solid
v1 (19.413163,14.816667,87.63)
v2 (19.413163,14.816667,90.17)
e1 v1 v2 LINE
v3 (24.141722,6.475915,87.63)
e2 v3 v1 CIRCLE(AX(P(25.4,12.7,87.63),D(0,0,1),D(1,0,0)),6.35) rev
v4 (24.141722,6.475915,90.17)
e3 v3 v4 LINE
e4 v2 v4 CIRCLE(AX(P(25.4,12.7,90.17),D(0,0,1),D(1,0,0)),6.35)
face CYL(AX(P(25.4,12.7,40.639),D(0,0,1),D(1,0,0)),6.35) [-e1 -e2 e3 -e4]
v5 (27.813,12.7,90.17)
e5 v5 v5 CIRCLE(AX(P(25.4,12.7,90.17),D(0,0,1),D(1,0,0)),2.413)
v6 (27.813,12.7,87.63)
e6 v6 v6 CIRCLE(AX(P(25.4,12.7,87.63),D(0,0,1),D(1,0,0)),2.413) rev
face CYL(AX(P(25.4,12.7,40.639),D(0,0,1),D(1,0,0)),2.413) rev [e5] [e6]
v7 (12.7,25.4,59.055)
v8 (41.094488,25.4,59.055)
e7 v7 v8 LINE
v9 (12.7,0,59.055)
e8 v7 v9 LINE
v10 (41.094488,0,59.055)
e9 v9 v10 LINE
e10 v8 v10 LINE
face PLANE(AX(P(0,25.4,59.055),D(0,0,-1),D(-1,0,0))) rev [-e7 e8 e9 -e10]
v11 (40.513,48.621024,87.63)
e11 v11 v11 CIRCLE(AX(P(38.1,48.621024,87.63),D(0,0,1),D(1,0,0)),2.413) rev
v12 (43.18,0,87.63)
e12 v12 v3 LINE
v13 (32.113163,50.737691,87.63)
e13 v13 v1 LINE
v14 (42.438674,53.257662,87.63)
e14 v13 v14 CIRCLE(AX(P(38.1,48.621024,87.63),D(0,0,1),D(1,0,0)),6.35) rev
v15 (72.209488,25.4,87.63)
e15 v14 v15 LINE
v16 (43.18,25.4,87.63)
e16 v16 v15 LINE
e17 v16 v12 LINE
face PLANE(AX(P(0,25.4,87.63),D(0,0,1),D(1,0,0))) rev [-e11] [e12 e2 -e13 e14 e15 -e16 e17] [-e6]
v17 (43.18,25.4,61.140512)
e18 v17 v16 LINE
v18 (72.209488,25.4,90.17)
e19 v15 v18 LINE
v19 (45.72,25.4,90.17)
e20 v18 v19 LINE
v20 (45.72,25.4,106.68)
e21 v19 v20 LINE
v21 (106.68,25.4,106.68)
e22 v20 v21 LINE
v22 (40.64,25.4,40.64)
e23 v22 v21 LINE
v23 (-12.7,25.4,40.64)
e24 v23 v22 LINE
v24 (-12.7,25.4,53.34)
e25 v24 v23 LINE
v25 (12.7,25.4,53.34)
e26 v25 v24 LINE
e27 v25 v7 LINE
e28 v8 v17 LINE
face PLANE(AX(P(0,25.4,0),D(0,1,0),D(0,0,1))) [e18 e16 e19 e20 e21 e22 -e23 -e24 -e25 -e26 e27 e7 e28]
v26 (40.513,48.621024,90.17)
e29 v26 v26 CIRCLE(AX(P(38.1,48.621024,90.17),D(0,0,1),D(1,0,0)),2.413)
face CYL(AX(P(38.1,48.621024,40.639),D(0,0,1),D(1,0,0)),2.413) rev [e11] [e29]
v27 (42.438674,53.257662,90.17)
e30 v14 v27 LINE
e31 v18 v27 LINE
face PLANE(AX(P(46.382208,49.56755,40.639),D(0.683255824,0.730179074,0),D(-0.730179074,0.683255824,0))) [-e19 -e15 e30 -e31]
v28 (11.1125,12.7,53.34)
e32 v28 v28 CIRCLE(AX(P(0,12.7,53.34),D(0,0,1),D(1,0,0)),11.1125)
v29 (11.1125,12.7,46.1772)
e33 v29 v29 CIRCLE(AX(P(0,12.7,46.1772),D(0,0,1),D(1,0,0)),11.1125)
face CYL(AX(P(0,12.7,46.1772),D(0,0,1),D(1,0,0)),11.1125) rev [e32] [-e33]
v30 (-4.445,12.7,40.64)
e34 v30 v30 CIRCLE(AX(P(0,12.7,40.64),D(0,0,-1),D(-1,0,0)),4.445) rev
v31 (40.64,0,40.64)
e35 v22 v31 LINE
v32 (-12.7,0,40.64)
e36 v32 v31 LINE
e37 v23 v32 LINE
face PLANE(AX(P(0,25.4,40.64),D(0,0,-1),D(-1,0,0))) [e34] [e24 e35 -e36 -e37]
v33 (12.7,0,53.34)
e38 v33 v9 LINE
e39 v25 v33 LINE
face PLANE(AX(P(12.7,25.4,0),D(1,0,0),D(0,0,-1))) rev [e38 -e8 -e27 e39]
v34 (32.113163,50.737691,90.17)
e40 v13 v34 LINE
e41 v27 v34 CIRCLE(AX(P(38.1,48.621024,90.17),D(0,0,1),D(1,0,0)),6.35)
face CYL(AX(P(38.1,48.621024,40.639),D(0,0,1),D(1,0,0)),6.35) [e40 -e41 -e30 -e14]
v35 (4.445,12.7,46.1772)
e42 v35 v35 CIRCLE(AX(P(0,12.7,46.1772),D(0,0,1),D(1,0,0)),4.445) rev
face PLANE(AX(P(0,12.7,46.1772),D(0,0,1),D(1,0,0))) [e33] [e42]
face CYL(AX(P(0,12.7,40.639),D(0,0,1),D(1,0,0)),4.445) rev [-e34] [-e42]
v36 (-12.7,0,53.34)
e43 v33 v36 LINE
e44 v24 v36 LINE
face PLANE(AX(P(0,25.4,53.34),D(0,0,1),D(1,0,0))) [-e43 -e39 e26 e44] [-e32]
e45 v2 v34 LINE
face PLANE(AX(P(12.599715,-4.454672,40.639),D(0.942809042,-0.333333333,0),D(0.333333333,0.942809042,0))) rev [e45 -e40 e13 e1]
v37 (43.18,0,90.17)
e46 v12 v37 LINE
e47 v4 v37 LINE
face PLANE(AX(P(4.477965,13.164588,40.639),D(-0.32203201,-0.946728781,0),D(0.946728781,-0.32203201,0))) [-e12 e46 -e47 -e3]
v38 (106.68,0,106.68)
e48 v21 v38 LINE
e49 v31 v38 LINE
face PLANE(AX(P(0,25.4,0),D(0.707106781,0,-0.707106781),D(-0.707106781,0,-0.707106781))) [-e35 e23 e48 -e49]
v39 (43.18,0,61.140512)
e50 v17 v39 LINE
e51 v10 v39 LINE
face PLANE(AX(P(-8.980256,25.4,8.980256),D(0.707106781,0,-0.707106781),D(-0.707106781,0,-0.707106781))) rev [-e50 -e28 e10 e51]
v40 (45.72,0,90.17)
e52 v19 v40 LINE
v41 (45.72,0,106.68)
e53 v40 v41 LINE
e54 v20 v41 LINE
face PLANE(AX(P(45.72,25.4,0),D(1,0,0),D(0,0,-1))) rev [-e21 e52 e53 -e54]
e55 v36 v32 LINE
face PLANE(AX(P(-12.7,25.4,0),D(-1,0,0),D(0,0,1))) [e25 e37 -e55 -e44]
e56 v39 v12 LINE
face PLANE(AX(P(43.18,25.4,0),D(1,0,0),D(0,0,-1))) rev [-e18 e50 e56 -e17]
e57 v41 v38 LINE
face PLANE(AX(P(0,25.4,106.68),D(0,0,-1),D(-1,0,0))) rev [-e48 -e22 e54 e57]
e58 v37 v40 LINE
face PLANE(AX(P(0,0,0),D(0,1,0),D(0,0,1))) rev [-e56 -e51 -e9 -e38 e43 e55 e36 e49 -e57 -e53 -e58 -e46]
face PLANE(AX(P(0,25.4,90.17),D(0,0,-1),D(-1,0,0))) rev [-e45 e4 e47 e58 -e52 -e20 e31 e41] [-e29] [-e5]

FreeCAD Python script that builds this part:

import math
import FreeCAD as App
import Part
import Sketcher
from FreeCAD import Vector
Q = App.Units.Quantity

doc = App.newDocument("Part")
body = doc.addObject("PartDesign::Body", "Body")

sketch1 = body.newObject("Sketcher::SketchObject", "Sketch")
sketch1.AttachmentSupport = (doc.getObject("XZ_Plane"), [""])
sketch1.MapMode = "FlatFace"
sketch1.addGeometry(Part.LineSegment(Vector(-12.7, 40.6, 0), Vector(-12.7, 53.3, 0)), False)
sketch1.addGeometry(Part.LineSegment(Vector(-12.7, 53.3, 0), Vector(12.7, 53.3, 0)), False)
sketch1.addGeometry(Part.LineSegment(Vector(12.7, 53.3, 0), Vector(12.7, 59.1, 0)), False)
sketch1.addGeometry(Part.LineSegment(Vector(12.7, 59.1, 0), Vector(41.1, 59.1, 0)), False)
sketch1.addGeometry(Part.LineSegment(Vector(41.1, 59.1, 0), Vector(43.2, 61.1, 0)), False)
sketch1.addGeometry(Part.LineSegment(Vector(43.2, 61.1, 0), Vector(43.2, 87.6, 0)), False)
sketch1.addGeometry(Part.LineSegment(Vector(43.2, 87.6, 0), Vector(16.5, 87.6, 0)), False)
sketch1.addGeometry(Part.LineSegment(Vector(16.5, 87.6, 0), Vector(16.5, 90.2, 0)), False)
sketch1.addGeometry(Part.LineSegment(Vector(16.5, 90.2, 0), Vector(45.7, 90.2, 0)), False)
sketch1.addGeometry(Part.LineSegment(Vector(45.7, 90.2, 0), Vector(45.7, 106.7, 0)), False)
sketch1.addGeometry(Part.LineSegment(Vector(45.7, 106.7, 0), Vector(106.7, 106.7, 0)), False)
sketch1.addGeometry(Part.LineSegment(Vector(106.7, 106.7, 0), Vector(40.6, 40.6, 0)), False)
sketch1.addGeometry(Part.LineSegment(Vector(40.6, 40.6, 0), Vector(-12.7, 40.6, 0)), False)
sketch1.addConstraint(Sketcher.Constraint("Coincident", 0, 2, 1, 1))
sketch1.addConstraint(Sketcher.Constraint("Coincident", 1, 2, 2, 1))
sketch1.addConstraint(Sketcher.Constraint("Coincident", 2, 2, 3, 1))
sketch1.addConstraint(Sketcher.Constraint("Coincident", 3, 2, 4, 1))
sketch1.addConstraint(Sketcher.Constraint("Coincident", 4, 2, 5, 1))
sketch1.addConstraint(Sketcher.Constraint("Coincident", 5, 2, 6, 1))
sketch1.addConstraint(Sketcher.Constraint("Coincident", 6, 2, 7, 1))
sketch1.addConstraint(Sketcher.Constraint("Coincident", 7, 2, 8, 1))
sketch1.addConstraint(Sketcher.Constraint("Coincident", 8, 2, 9, 1))
sketch1.addConstraint(Sketcher.Constraint("Coincident", 9, 2, 10, 1))
sketch1.addConstraint(Sketcher.Constraint("Coincident", 10, 2, 11, 1))
sketch1.addConstraint(Sketcher.Constraint("Coincident", 11, 2, 12, 1))
sketch1.addConstraint(Sketcher.Constraint("Coincident", 12, 2, 0, 1))
sketch1.addConstraint(Sketcher.Constraint("Vertical", 0))
sketch1.addConstraint(Sketcher.Constraint("Horizontal", 1))
sketch1.addConstraint(Sketcher.Constraint("Vertical", 2))
sketch1.addConstraint(Sketcher.Constraint("Horizontal", 3))
sketch1.addConstraint(Sketcher.Constraint("Vertical", 5))
sketch1.addConstraint(Sketcher.Constraint("Horizontal", 6))
sketch1.addConstraint(Sketcher.Constraint("Vertical", 7))
sketch1.addConstraint(Sketcher.Constraint("Horizontal", 8))
sketch1.addConstraint(Sketcher.Constraint("Vertical", 9))
sketch1.addConstraint(Sketcher.Constraint("Horizontal", 10))
sketch1.addConstraint(Sketcher.Constraint("Horizontal", 12))
sketch1.addConstraint(Sketcher.Constraint("Parallel", 4, 11))
sketch1.addConstraint(Sketcher.Constraint("DistanceX", 1, 1, 1, 2, Q("1 in")))
sketch1.addConstraint(Sketcher.Constraint("DistanceX", 10, 1, 10, 2, Q("2.4 in")))
sketch1.addConstraint(Sketcher.Constraint("DistanceX", 12, 2, 12, 1, Q("2.1 in")))
sketch1.addConstraint(Sketcher.Constraint("DistanceY", 0, 1, 0, 2, Q("0.5 in")))
sketch1.addConstraint(Sketcher.Constraint("DistanceY", 7, 1, 7, 2, Q("0.1 in")))
sketch1.addConstraint(Sketcher.Constraint("Angle", 4, Q("45 deg")))
sketch1.addConstraint(Sketcher.Constraint("DistanceX", 6, 2, 6, 1, Q("1.05 in")))
sketch1.addConstraint(Sketcher.Constraint("DistanceX", 8, 1, 8, 2, Q("1.15 in")))
sketch1.addConstraint(Sketcher.Constraint("DistanceY", 9, 1, 9, 2, Q("0.65 in")))
sketch1.addConstraint(Sketcher.Constraint("DistanceX", 0, 2, -1, 1, Q("0.5 in")))
sketch1.addConstraint(Sketcher.Constraint("DistanceY", -1, 1, 0, 2, Q("2.1 in")))
sketch1.addConstraint(Sketcher.Constraint("DistanceX", -1, 1, 4, 2, Q("1.7 in")))
sketch1.addConstraint(Sketcher.Constraint("DistanceY", 2, 1, 2, 2, Q("0.225 in")))
sketch1.addConstraint(Sketcher.Constraint("Distance", 4, 2.94936))
pad1 = body.newObject("PartDesign::Pad", "Pad")
pad1.Profile = sketch1
pad1.Length = Q("1 in")
pad1.Reversed = True

sketch2 = body.newObject("Sketcher::SketchObject", "Sketch001")
sketch2.AttachmentSupport = (doc.getObject("XY_Plane"), [""])
sketch2.MapMode = "FlatFace"
sketch2.AttachmentOffset = App.Placement(Vector(0, 0, 2.1 * 25.4), App.Rotation())
sketch2.addGeometry(Part.Circle(Vector(0, 13, 0), Vector(0, 0, 1), 11), False)
sketch2.addConstraint(Sketcher.Constraint("PointOnObject", 0, 3, -2))
sketch2.addConstraint(Sketcher.Constraint("Diameter", 0, Q("0.875 in")))
sketch2.addConstraint(Sketcher.Constraint("DistanceY", -1, 1, 0, 3, Q("0.5 in")))
pocket1 = body.newObject("PartDesign::Pocket", "Pocket")
pocket1.Profile = sketch2
pocket1.Length = Q("0.282 in")

sketch3 = body.newObject("Sketcher::SketchObject", "Sketch002")
sketch3.AttachmentSupport = (doc.getObject("XY_Plane"), [""])
sketch3.MapMode = "FlatFace"
sketch3.AttachmentOffset = App.Placement(Vector(0, 0, 2.1 * 25.4), App.Rotation())
sketch3.addGeometry(Part.Circle(Vector(0, 12.7, 0), Vector(0, 0, 1), 4.4), False)
sketch3.addConstraint(Sketcher.Constraint("PointOnObject", 0, 3, -2))
sketch3.addConstraint(Sketcher.Constraint("Diameter", 0, Q("0.35 in")))
sketch3.addConstraint(Sketcher.Constraint("DistanceY", -1, 1, 0, 3, Q("0.5 in")))
pocket2 = body.newObject("PartDesign::Pocket", "Pocket001")
pocket2.Profile = sketch3
pocket2.Length = Q("0.5 in")

sketch4 = body.newObject("Sketcher::SketchObject", "Sketch003")
sketch4.AttachmentSupport = (doc.getObject("XZ_Plane"), [""])
sketch4.MapMode = "FlatFace"
sketch4.addGeometry(Part.LineSegment(Vector(88.7, 106.7, 0), Vector(43.2, 61.1, 0)), False)
sketch4.addGeometry(Part.LineSegment(Vector(43.2, 61.1, 0), Vector(43.2, 87.6, 0)), False)
sketch4.addGeometry(Part.LineSegment(Vector(43.2, 87.6, 0), Vector(16.5, 87.6, 0)), False)
sketch4.addGeometry(Part.LineSegment(Vector(16.5, 87.6, 0), Vector(16.5, 90.2, 0)), False)
sketch4.addGeometry(Part.LineSegment(Vector(16.5, 90.2, 0), Vector(45.7, 90.2, 0)), False)
sketch4.addGeometry(Part.LineSegment(Vector(45.7, 90.2, 0), Vector(45.7, 106.7, 0)), False)
sketch4.addGeometry(Part.LineSegment(Vector(45.7, 106.7, 0), Vector(88.7, 106.7, 0)), False)
sketch4.addConstraint(Sketcher.Constraint("Coincident", 0, 2, 1, 1))
sketch4.addConstraint(Sketcher.Constraint("Coincident", 1, 2, 2, 1))
sketch4.addConstraint(Sketcher.Constraint("Coincident", 2, 2, 3, 1))
sketch4.addConstraint(Sketcher.Constraint("Coincident", 3, 2, 4, 1))
sketch4.addConstraint(Sketcher.Constraint("Coincident", 4, 2, 5, 1))
sketch4.addConstraint(Sketcher.Constraint("Coincident", 5, 2, 6, 1))
sketch4.addConstraint(Sketcher.Constraint("Coincident", 6, 2, 0, 1))
sketch4.addConstraint(Sketcher.Constraint("Vertical", 1))
sketch4.addConstraint(Sketcher.Constraint("Horizontal", 2))
sketch4.addConstraint(Sketcher.Constraint("Vertical", 3))
sketch4.addConstraint(Sketcher.Constraint("Horizontal", 4))
sketch4.addConstraint(Sketcher.Constraint("Vertical", 5))
sketch4.addConstraint(Sketcher.Constraint("Horizontal", 6))
sketch4.addConstraint(Sketcher.Constraint("DistanceY", 3, 1, 3, 2, Q("0.1 in")))
sketch4.addConstraint(Sketcher.Constraint("Angle", 0, Q("-135 deg")))
sketch4.addConstraint(Sketcher.Constraint("DistanceX", 2, 2, 2, 1, Q("1.05 in")))
sketch4.addConstraint(Sketcher.Constraint("DistanceX", 4, 1, 4, 2, Q("1.15 in")))
sketch4.addConstraint(Sketcher.Constraint("DistanceY", 5, 1, 5, 2, Q("0.65 in")))
sketch4.addConstraint(Sketcher.Constraint("DistanceX", -1, 1, 0, 2, Q("1.7 in")))
sketch4.addConstraint(Sketcher.Constraint("DistanceY", -1, 1, 5, 2, Q("4.2 in")))
sketch4.addConstraint(Sketcher.Constraint("Distance", 0, 64.402561))
pad2 = body.newObject("PartDesign::Pad", "Pad001")
pad2.Profile = sketch4
pad2.Length = Q("2.7 in")
pad2.Reversed = True

sketch5 = body.newObject("Sketcher::SketchObject", "Sketch004")
sketch5.AttachmentSupport = (doc.getObject("XY_Plane"), [""])
sketch5.MapMode = "FlatFace"
sketch5.AttachmentOffset = App.Placement(Vector(0, 0, 3.55 * 25.4), App.Rotation())
sketch5.addGeometry(Part.Circle(Vector(38.1, 48.6, 0), Vector(0, 0, 1), 2.4), False)
sketch5.addConstraint(Sketcher.Constraint("Diameter", 0, Q("0.19 in")))
sketch5.addConstraint(Sketcher.Constraint("DistanceX", -1, 1, 0, 3, Q("1.5 in")))
sketch5.addConstraint(Sketcher.Constraint("DistanceY", -1, 1, 0, 3, 48.621024))
pocket3 = body.newObject("PartDesign::Pocket", "Pocket002")
pocket3.Profile = sketch5
pocket3.Type = "UpToFirst"

sketch6 = body.newObject("Sketcher::SketchObject", "Sketch005")
sketch6.AttachmentSupport = (doc.getObject("XY_Plane"), [""])
sketch6.MapMode = "FlatFace"
sketch6.AttachmentOffset = App.Placement(Vector(0, 0, 3.55 * 25.4), App.Rotation())
sketch6.addGeometry(Part.Circle(Vector(25.4, 12.7, 0), Vector(0, 0, 1), 2.4), False)
sketch6.addConstraint(Sketcher.Constraint("Diameter", 0, Q("0.19 in")))
sketch6.addConstraint(Sketcher.Constraint("DistanceX", -1, 1, 0, 3, Q("1 in")))
sketch6.addConstraint(Sketcher.Constraint("DistanceY", -1, 1, 0, 3, Q("0.5 in")))
pocket4 = body.newObject("PartDesign::Pocket", "Pocket003")
pocket4.Profile = sketch6
pocket4.Type = "UpToFirst"

sketch7 = body.newObject("Sketcher::SketchObject", "Sketch006")
sketch7.AttachmentSupport = (doc.getObject("XY_Plane"), [""])
sketch7.MapMode = "FlatFace"
sketch7.AttachmentOffset = App.Placement(Vector(0, 0, 3.55 * 25.4), App.Rotation())
sketch7.addGeometry(Part.ArcOfCircle(Part.Circle(Vector(0, 13, 0), Vector(0, 0, 1), 41), math.radians(45), math.radians(66)), False)
sketch7.addGeometry(Part.LineSegment(Vector(29, 42, 0), Vector(32, 51, 0)), False)
sketch7.addGeometry(Part.ArcOfCircle(Part.Circle(Vector(38, 49, 0), Vector(0, 0, 1), 6), math.radians(59), math.radians(161)), False)
sketch7.addGeometry(Part.LineSegment(Vector(41, 54, 0), Vector(89, 25, 0)), False)
sketch7.addGeometry(Part.LineSegment(Vector(89, 25, 0), Vector(89, 69, 0)), False)
sketch7.addGeometry(Part.LineSegment(Vector(89, 69, 0), Vector(17, 69, 0)), False)
sketch7.addGeometry(Part.LineSegment(Vector(17, 69, 0), Vector(17, 51, 0)), False)
sketch7.addConstraint(Sketcher.Constraint("Coincident", 0, 1, 1, 1))
sketch7.addConstraint(Sketcher.Constraint("Tangent", 1, 2, 2, 2))
sketch7.addConstraint(Sketcher.Constraint("Tangent", 2, 1, 3, 1))
sketch7.addConstraint(Sketcher.Constraint("Coincident", 3, 2, 4, 1))
sketch7.addConstraint(Sketcher.Constraint("Coincident", 4, 2, 5, 1))
sketch7.addConstraint(Sketcher.Constraint("Coincident", 5, 2, 6, 1))
sketch7.addConstraint(Sketcher.Constraint("Coincident", 6, 2, 0, 2))
sketch7.addConstraint(Sketcher.Constraint("Vertical", 4))
sketch7.addConstraint(Sketcher.Constraint("Horizontal", 5))
sketch7.addConstraint(Sketcher.Constraint("Vertical", 6))
sketch7.addConstraint(Sketcher.Constraint("PointOnObject", 0, 3, -2))
sketch7.addConstraint(Sketcher.Constraint("Radius", 2, Q("0.25 in")))
sketch7.addConstraint(Sketcher.Constraint("DistanceY", 4, 1, 4, 2, Q("1.7 in")))
sketch7.addConstraint(Sketcher.Constraint("DistanceY", -1, 1, 3, 2, Q("1 in")))
sketch7.addConstraint(Sketcher.Constraint("Radius", 0, Q("1.625 in")))
sketch7.addConstraint(Sketcher.Constraint("DistanceY", -1, 1, 0, 3, Q("0.5 in")))
sketch7.addConstraint(Sketcher.Constraint("DistanceX", -1, 1, 2, 3, Q("1.5 in")))
sketch7.addConstraint(Sketcher.Constraint("DistanceX", -1, 1, 5, 2, Q("0.65 in")))
sketch7.addConstraint(Sketcher.Constraint("DistanceX", 5, 2, 5, 1, 72.209488))
sketch7.addConstraint(Sketcher.Constraint("DistanceY", -1, 1, 0, 1, 42.034708))
sketch7.addConstraint(Sketcher.Constraint("DistanceY", -1, 1, 1, 2, 50.737691))
pocket5 = body.newObject("PartDesign::Pocket", "Pocket004")
pocket5.Profile = sketch7
pocket5.Length = 29.029488

sketch8 = body.newObject("Sketcher::SketchObject", "Sketch007")
sketch8.AttachmentSupport = (doc.getObject("XY_Plane"), [""])
sketch8.MapMode = "FlatFace"
sketch8.AttachmentOffset = App.Placement(Vector(0, 0, 3.55 * 25.4), App.Rotation())
sketch8.addGeometry(Part.ArcOfCircle(Part.Circle(Vector(25.4, 12.7, 0), Vector(0, 0, 1), 6.3), math.radians(-116.14), math.radians(-101.43)), False)
sketch8.addGeometry(Part.ArcOfCircle(Part.Circle(Vector(25.4, 12.7, 0), Vector(0, 0, 1), 6.3), math.radians(161), math.radians(244)), False)
sketch8.addGeometry(Part.LineSegment(Vector(19.4, 14.8, 0), Vector(29, 42, 0)), False)
sketch8.addGeometry(Part.ArcOfCircle(Part.Circle(Vector(0, 12.7, 0), Vector(0, 0, 1), 41.3), math.radians(45), math.radians(66)), False)
sketch8.addGeometry(Part.LineSegment(Vector(16.5, 50.5, 0), Vector(16.5, 0, 0)), False)
sketch8.addGeometry(Part.LineSegment(Vector(16.5, 0, 0), Vector(39.3, 0, 0)), False)
sketch8.addGeometry(Part.ArcOfCircle(Part.Circle(Vector(0, 12.7, 0), Vector(0, 0, 1), 41.3), math.radians(-17.92), math.radians(-16.17)), False)
sketch8.addGeometry(Part.LineSegment(Vector(39.6, 1.2, 0), Vector(24.1, 6.5, 0)), False)
sketch8.addConstraint(Sketcher.Constraint("Tangent", 0, 1, 1, 2))
sketch8.addConstraint(Sketcher.Constraint("Tangent", 1, 1, 2, 1))
sketch8.addConstraint(Sketcher.Constraint("Coincident", 2, 2, 3, 1))
sketch8.addConstraint(Sketcher.Constraint("Coincident", 3, 2, 4, 1))
sketch8.addConstraint(Sketcher.Constraint("Coincident", 4, 2, 5, 1))
sketch8.addConstraint(Sketcher.Constraint("Coincident", 5, 2, 6, 1))
sketch8.addConstraint(Sketcher.Constraint("Coincident", 6, 2, 7, 1))
sketch8.addConstraint(Sketcher.Constraint("Coincident", 7, 2, 0, 2))
sketch8.addConstraint(Sketcher.Constraint("Vertical", 4))
sketch8.addConstraint(Sketcher.Constraint("Horizontal", 5))
sketch8.addConstraint(Sketcher.Constraint("Coincident", 6, 3, 3, 3))
sketch8.addConstraint(Sketcher.Constraint("Equal", 0, 1))
sketch8.addConstraint(Sketcher.Constraint("PointOnObject", 3, 3, -2))
sketch8.addConstraint(Sketcher.Constraint("PointOnObject", 4, 2, -1))
sketch8.addConstraint(Sketcher.Constraint("Horizontal", 1, 3, 3, 3))
sketch8.addConstraint(Sketcher.Constraint("Radius", 0, Q("0.25 in")))
sketch8.addConstraint(Sketcher.Constraint("DistanceX", -1, 1, 0, 3, Q("1 in")))
sketch8.addConstraint(Sketcher.Constraint("Radius", 3, Q("1.625 in")))
sketch8.addConstraint(Sketcher.Constraint("Radius", 6, Q("1.6250002 in")))
sketch8.addConstraint(Sketcher.Constraint("DistanceY", -1, 1, 0, 3, Q("0.5 in")))
sketch8.addConstraint(Sketcher.Constraint("DistanceX", -1, 1, 3, 2, Q("0.65 in")))
sketch8.addConstraint(Sketcher.Constraint("DistanceY", 0, 1, 2, 2, 35.0351))
sketch8.addConstraint(Sketcher.Constraint("Distance", 7, 16.372059))
sketch8.addConstraint(Sketcher.Constraint("DistanceX", -1, 1, 0, 1, 22.602139))
sketch8.addConstraint(Sketcher.Constraint("DistanceX", -1, 1, 6, 2, 39.641621))
pocket6 = body.newObject("PartDesign::Pocket", "Pocket005")
pocket6.Profile = sketch8
pocket6.Type = "UpToFirst"

sketch9 = body.newObject("Sketcher::SketchObject", "Sketch008")
sketch9.AttachmentSupport = (doc.getObject("XY_Plane"), [""])
sketch9.MapMode = "FlatFace"
sketch9.AttachmentOffset = App.Placement(Vector(0, 0, 4.2 * 25.4), App.Rotation())
sketch9.addGeometry(Part.LineSegment(Vector(29, 42, 0), Vector(32.1, 50.7, 0)), False)
sketch9.addGeometry(Part.ArcOfCircle(Part.Circle(Vector(38.1, 48.6, 0), Vector(0, 0, 1), 6.3), math.radians(59), math.radians(161)), False)
sketch9.addGeometry(Part.LineSegment(Vector(41.4, 54.1, 0), Vector(88.7, 25.4, 0)), False)
sketch9.addGeometry(Part.LineSegment(Vector(88.7, 25.4, 0), Vector(88.7, 68.6, 0)), False)
sketch9.addGeometry(Part.LineSegment(Vector(88.7, 68.6, 0), Vector(16.5, 68.6, 0)), False)
sketch9.addGeometry(Part.LineSegment(Vector(16.5, 68.6, 0), Vector(16.5, 0, 0)), False)
sketch9.addGeometry(Part.LineSegment(Vector(16.5, 0, 0), Vector(43.2, 0, 0)), False)
sketch9.addGeometry(Part.LineSegment(Vector(43.2, 0, 0), Vector(39.6, 1.2, 0)), False)
sketch9.addGeometry(Part.LineSegment(Vector(39.6, 1.2, 0), Vector(24.1, 6.5, 0)), False)
sketch9.addGeometry(Part.ArcOfCircle(Part.Circle(Vector(25.4, 12.7, 0), Vector(0, 0, 1), 6.3), math.radians(-116.14), math.radians(-101.43)), False)
sketch9.addGeometry(Part.ArcOfCircle(Part.Circle(Vector(25.4, 12.7, 0), Vector(0, 0, 1), 6.3), math.radians(161), math.radians(244)), False)
sketch9.addGeometry(Part.LineSegment(Vector(19.4, 14.8, 0), Vector(29, 42, 0)), False)
sketch9.addConstraint(Sketcher.Constraint("Tangent", 0, 2, 1, 2))
sketch9.addConstraint(Sketcher.Constraint("Tangent", 1, 1, 2, 1))
sketch9.addConstraint(Sketcher.Constraint("Coincident", 2, 2, 3, 1))
sketch9.addConstraint(Sketcher.Constraint("Coincident", 3, 2, 4, 1))
sketch9.addConstraint(Sketcher.Constraint("Coincident", 4, 2, 5, 1))
sketch9.addConstraint(Sketcher.Constraint("Coincident", 5, 2, 6, 1))
sketch9.addConstraint(Sketcher.Constraint("Coincident", 6, 2, 7, 1))
sketch9.addConstraint(Sketcher.Constraint("Coincident", 7, 2, 8, 1))
sketch9.addConstraint(Sketcher.Constraint("Coincident", 8, 2, 9, 2))
sketch9.addConstraint(Sketcher.Constraint("Tangent", 9, 1, 10, 2))
sketch9.addConstraint(Sketcher.Constraint("Tangent", 10, 1, 11, 1))
sketch9.addConstraint(Sketcher.Constraint("Coincident", 11, 2, 0, 1))
sketch9.addConstraint(Sketcher.Constraint("Vertical", 3))
sketch9.addConstraint(Sketcher.Constraint("Horizontal", 4))
sketch9.addConstraint(Sketcher.Constraint("Vertical", 5))
sketch9.addConstraint(Sketcher.Constraint("Horizontal", 6))
sketch9.addConstraint(Sketcher.Constraint("Equal", 1, 9))
sketch9.addConstraint(Sketcher.Constraint("Equal", 9, 10))
sketch9.addConstraint(Sketcher.Constraint("PointOnObject", 5, 2, -1))
sketch9.addConstraint(Sketcher.Constraint("Parallel", 7, 8))
sketch9.addConstraint(Sketcher.Constraint("Parallel", 0, 11))
sketch9.addConstraint(Sketcher.Constraint("Radius", 1, Q("0.25 in")))
sketch9.addConstraint(Sketcher.Constraint("DistanceY", 3, 1, 3, 2, Q("1.7 in")))
sketch9.addConstraint(Sketcher.Constraint("DistanceY", 5, 2, 5, 1, Q("2.7 in")))
sketch9.addConstraint(Sketcher.Constraint("DistanceX", -1, 1, 9, 3, Q("1 in")))
sketch9.addConstraint(Sketcher.Constraint("DistanceX", 6, 1, 6, 2, Q("1.05 in")))
sketch9.addConstraint(Sketcher.Constraint("DistanceX", -1, 1, 1, 3, Q("1.5 in")))
sketch9.addConstraint(Sketcher.Constraint("DistanceY", -1, 1, 9, 3, Q("0.5 in")))
sketch9.addConstraint(Sketcher.Constraint("DistanceX", -1, 1, 6, 2, Q("1.7 in")))
sketch9.addConstraint(Sketcher.Constraint("DistanceX", 8, 2, 7, 2, 15.499899))
sketch9.addConstraint(Sketcher.Constraint("Distance", 7, 3.737479))
sketch9.addConstraint(Sketcher.Constraint("DistanceX", 4, 2, 4, 1, 72.209488))
sketch9.addConstraint(Sketcher.Constraint("DistanceY", -1, 1, 0, 2, 50.737691))
sketch9.addConstraint(Sketcher.Constraint("DistanceX", -1, 1, 9, 1, 22.602139))
sketch9.addConstraint(Sketcher.Constraint("DistanceY", -1, 1, 11, 2, 42.034708))
pocket7 = body.newObject("PartDesign::Pocket", "Pocket006")
pocket7.Profile = sketch9
pocket7.Length = Q("0.65 in")

sketch10 = body.newObject("Sketcher::SketchObject", "Sketch009")
sketch10.AttachmentSupport = (doc.getObject("XY_Plane"), [""])
sketch10.MapMode = "FlatFace"
sketch10.AttachmentOffset = App.Placement(Vector(0, 0, 3.55 * 25.4), App.Rotation())
sketch10.addGeometry(Part.LineSegment(Vector(43.2, 0, 0), Vector(39.6, 1.2, 0)), False)
sketch10.addGeometry(Part.ArcOfCircle(Part.Circle(Vector(0, 12.7, 0), Vector(0, 0, 1), 41.3), math.radians(-17.92), math.radians(-16.17)), False)
sketch10.addGeometry(Part.LineSegment(Vector(39.3, 0, 0), Vector(43.2, 0, 0)), False)
sketch10.addConstraint(Sketcher.Constraint("Coincident", 0, 2, 1, 2))
sketch10.addConstraint(Sketcher.Constraint("Coincident", 1, 1, 2, 1))
sketch10.addConstraint(Sketcher.Constraint("Coincident", 2, 2, 0, 1))
sketch10.addConstraint(Sketcher.Constraint("Horizontal", 2))
sketch10.addConstraint(Sketcher.Constraint("PointOnObject", 1, 1, -1))
sketch10.addConstraint(Sketcher.Constraint("Radius", 1, Q("1.6250002 in")))
sketch10.addConstraint(Sketcher.Constraint("DistanceY", -1, 1, 1, 3, Q("0.5000001 in")))
sketch10.addConstraint(Sketcher.Constraint("DistanceX", -1, 1, 2, 2, Q("1.7 in")))
sketch10.addConstraint(Sketcher.Constraint("DistanceX", 1, 3, 2, 2, Q("1.7000002 in")))
sketch10.addConstraint(Sketcher.Constraint("Distance", 0, 3.737479))
pocket8 = body.newObject("PartDesign::Pocket", "Pocket007")
pocket8.Profile = sketch10
pocket8.Type = "UpToFirst"

sketch11 = body.newObject("Sketcher::SketchObject", "Sketch010")
sketch11.AttachmentSupport = (doc.getObject("XZ_Plane"), [""])
sketch11.MapMode = "FlatFace"
sketch11.AttachmentOffset = App.Placement(Vector(0, 0, -1 * 25.4), App.Rotation())
sketch11.addGeometry(Part.LineSegment(Vector(43, 61, 0), Vector(43, 88, 0)), False)
sketch11.addGeometry(Part.LineSegment(Vector(43, 88, 0), Vector(70, 88, 0)), False)
sketch11.addGeometry(Part.LineSegment(Vector(70, 88, 0), Vector(43, 61, 0)), False)
sketch11.addConstraint(Sketcher.Constraint("Coincident", 0, 2, 1, 1))
sketch11.addConstraint(Sketcher.Constraint("Coincident", 1, 2, 2, 1))
sketch11.addConstraint(Sketcher.Constraint("Coincident", 2, 2, 0, 1))
sketch11.addConstraint(Sketcher.Constraint("Vertical", 0))
sketch11.addConstraint(Sketcher.Constraint("Horizontal", 1))
sketch11.addConstraint(Sketcher.Constraint("Equal", 1, 0))
sketch11.addConstraint(Sketcher.Constraint("DistanceX", -1, 1, 0, 2, Q("1.7 in")))
sketch11.addConstraint(Sketcher.Constraint("DistanceY", -1, 1, 0, 2, Q("3.45 in")))
sketch11.addConstraint(Sketcher.Constraint("DistanceX", 1, 1, 1, 2, 26.489488))
pocket9 = body.newObject("PartDesign::Pocket", "Pocket008")
pocket9.Profile = sketch11
pocket9.Type = "UpToFirst"

sketch12 = body.newObject("Sketcher::SketchObject", "Sketch011")
sketch12.AttachmentSupport = (doc.getObject("XZ_Plane"), [""])
sketch12.MapMode = "FlatFace"
sketch12.AttachmentOffset = App.Placement(Vector(0, 0, -1 * 25.4), App.Rotation())
sketch12.addGeometry(Part.LineSegment(Vector(72, 90, 0), Vector(46, 90, 0)), False)
sketch12.addGeometry(Part.LineSegment(Vector(46, 90, 0), Vector(46, 107, 0)), False)
sketch12.addGeometry(Part.LineSegment(Vector(46, 107, 0), Vector(89, 107, 0)), False)
sketch12.addGeometry(Part.LineSegment(Vector(89, 107, 0), Vector(72, 90, 0)), False)
sketch12.addConstraint(Sketcher.Constraint("Coincident", 0, 2, 1, 1))
sketch12.addConstraint(Sketcher.Constraint("Coincident", 1, 2, 2, 1))
sketch12.addConstraint(Sketcher.Constraint("Coincident", 2, 2, 3, 1))
sketch12.addConstraint(Sketcher.Constraint("Coincident", 3, 2, 0, 1))
sketch12.addConstraint(Sketcher.Constraint("Horizontal", 0))
sketch12.addConstraint(Sketcher.Constraint("Vertical", 1))
sketch12.addConstraint(Sketcher.Constraint("Horizontal", 2))
sketch12.addConstraint(Sketcher.Constraint("Angle", 3, Q("-135 deg")))
sketch12.addConstraint(Sketcher.Constraint("DistanceY", 1, 1, 1, 2, Q("0.65 in")))
sketch12.addConstraint(Sketcher.Constraint("DistanceX", -1, 1, 0, 2, Q("1.8 in")))
sketch12.addConstraint(Sketcher.Constraint("DistanceY", -1, 1, 1, 2, Q("4.2 in")))
sketch12.addConstraint(Sketcher.Constraint("DistanceX", 0, 2, 0, 1, 26.489488))
pocket10 = body.newObject("PartDesign::Pocket", "Pocket009")
pocket10.Profile = sketch12
pocket10.Length = 26.030978

sketch13 = body.newObject("Sketcher::SketchObject", "Sketch012")
sketch13.AttachmentSupport = (doc.getObject("XY_Plane"), [""])
sketch13.MapMode = "FlatFace"
sketch13.AttachmentOffset = App.Placement(Vector(0, 0, 3.55 * 25.4), App.Rotation())
sketch13.addGeometry(Part.LineSegment(Vector(69.5, 27.9, 0), Vector(72.2, 25.4, 0)), False)
sketch13.addGeometry(Part.LineSegment(Vector(72.2, 25.4, 0), Vector(72.2, 35.4, 0)), False)
sketch13.addGeometry(Part.LineSegment(Vector(72.2, 35.4, 0), Vector(41.4, 54.1, 0)), False)
sketch13.addGeometry(Part.ArcOfCircle(Part.Circle(Vector(38.1, 48.6, 0), Vector(0, 0, 1), 6.3), math.radians(46.9), math.radians(58.81)), False)
sketch13.addGeometry(Part.LineSegment(Vector(42.4, 53.3, 0), Vector(69.5, 27.9, 0)), False)
sketch13.addConstraint(Sketcher.Constraint("Coincident", 0, 2, 1, 1))
sketch13.addConstraint(Sketcher.Constraint("Coincident", 1, 2, 2, 1))
sketch13.addConstraint(Sketcher.Constraint("Tangent", 2, 2, 3, 2))
sketch13.addConstraint(Sketcher.Constraint("Tangent", 3, 1, 4, 1))
sketch13.addConstraint(Sketcher.Constraint("Coincident", 4, 2, 0, 1))
sketch13.addConstraint(Sketcher.Constraint("Vertical", 1))
sketch13.addConstraint(Sketcher.Constraint("Parallel", 0, 4))
sketch13.addConstraint(Sketcher.Constraint("Radius", 3, Q("0.25 in")))
sketch13.addConstraint(Sketcher.Constraint("DistanceY", -1, 1, 0, 2, Q("1 in")))
sketch13.addConstraint(Sketcher.Constraint("DistanceX", -1, 1, 3, 3, Q("1.5 in")))
sketch13.addConstraint(Sketcher.Constraint("Distance", 4, 37.117181))
sketch13.addConstraint(Sketcher.Constraint("DistanceY", 1, 1, 1, 2, 9.994804))
sketch13.addConstraint(Sketcher.Constraint("DistanceY", -1, 1, 2, 2, 54.053172))
sketch13.addConstraint(Sketcher.Constraint("DistanceY", -1, 1, 3, 1, 53.257662))
pocket11 = body.newObject("PartDesign::Pocket", "Pocket010")
pocket11.Profile = sketch13
pocket11.Type = "UpToFirst"

sketch14 = body.newObject("Sketcher::SketchObject", "Sketch013")
sketch14.AttachmentSupport = (doc.getObject("XY_Plane"), [""])
sketch14.MapMode = "FlatFace"
sketch14.AttachmentOffset = App.Placement(Vector(0, 0, 3.55 * 25.4), App.Rotation())
sketch14.addGeometry(Part.LineSegment(Vector(69.5, 25.4, 0), Vector(72.2, 25.4, 0)), False)
sketch14.addGeometry(Part.LineSegment(Vector(72.2, 25.4, 0), Vector(69.5, 27.9, 0)), False)
sketch14.addGeometry(Part.LineSegment(Vector(69.5, 27.9, 0), Vector(69.5, 25.4, 0)), False)
sketch14.addConstraint(Sketcher.Constraint("Coincident", 0, 2, 1, 1))
sketch14.addConstraint(Sketcher.Constraint("Coincident", 1, 2, 2, 1))
sketch14.addConstraint(Sketcher.Constraint("Coincident", 2, 2, 0, 1))
sketch14.addConstraint(Sketcher.Constraint("Horizontal", 0))
sketch14.addConstraint(Sketcher.Constraint("Vertical", 2))
sketch14.addConstraint(Sketcher.Constraint("DistanceY", -1, 1, 0, 2, Q("1 in")))
sketch14.addConstraint(Sketcher.Constraint("DistanceY", 2, 2, 2, 1, 2.497132))
sketch14.addConstraint(Sketcher.Constraint("DistanceX", 0, 1, 0, 2, 2.668624))
sketch14.addConstraint(Sketcher.Constraint("DistanceX", -1, 1, 0, 2, 72.209488))
pad3 = body.newObject("PartDesign::Pad", "Pad002")
pad3.Profile = sketch14
pad3.Length = Q("0.1 in")
pad3.Reversed = True

doc.recompute()
